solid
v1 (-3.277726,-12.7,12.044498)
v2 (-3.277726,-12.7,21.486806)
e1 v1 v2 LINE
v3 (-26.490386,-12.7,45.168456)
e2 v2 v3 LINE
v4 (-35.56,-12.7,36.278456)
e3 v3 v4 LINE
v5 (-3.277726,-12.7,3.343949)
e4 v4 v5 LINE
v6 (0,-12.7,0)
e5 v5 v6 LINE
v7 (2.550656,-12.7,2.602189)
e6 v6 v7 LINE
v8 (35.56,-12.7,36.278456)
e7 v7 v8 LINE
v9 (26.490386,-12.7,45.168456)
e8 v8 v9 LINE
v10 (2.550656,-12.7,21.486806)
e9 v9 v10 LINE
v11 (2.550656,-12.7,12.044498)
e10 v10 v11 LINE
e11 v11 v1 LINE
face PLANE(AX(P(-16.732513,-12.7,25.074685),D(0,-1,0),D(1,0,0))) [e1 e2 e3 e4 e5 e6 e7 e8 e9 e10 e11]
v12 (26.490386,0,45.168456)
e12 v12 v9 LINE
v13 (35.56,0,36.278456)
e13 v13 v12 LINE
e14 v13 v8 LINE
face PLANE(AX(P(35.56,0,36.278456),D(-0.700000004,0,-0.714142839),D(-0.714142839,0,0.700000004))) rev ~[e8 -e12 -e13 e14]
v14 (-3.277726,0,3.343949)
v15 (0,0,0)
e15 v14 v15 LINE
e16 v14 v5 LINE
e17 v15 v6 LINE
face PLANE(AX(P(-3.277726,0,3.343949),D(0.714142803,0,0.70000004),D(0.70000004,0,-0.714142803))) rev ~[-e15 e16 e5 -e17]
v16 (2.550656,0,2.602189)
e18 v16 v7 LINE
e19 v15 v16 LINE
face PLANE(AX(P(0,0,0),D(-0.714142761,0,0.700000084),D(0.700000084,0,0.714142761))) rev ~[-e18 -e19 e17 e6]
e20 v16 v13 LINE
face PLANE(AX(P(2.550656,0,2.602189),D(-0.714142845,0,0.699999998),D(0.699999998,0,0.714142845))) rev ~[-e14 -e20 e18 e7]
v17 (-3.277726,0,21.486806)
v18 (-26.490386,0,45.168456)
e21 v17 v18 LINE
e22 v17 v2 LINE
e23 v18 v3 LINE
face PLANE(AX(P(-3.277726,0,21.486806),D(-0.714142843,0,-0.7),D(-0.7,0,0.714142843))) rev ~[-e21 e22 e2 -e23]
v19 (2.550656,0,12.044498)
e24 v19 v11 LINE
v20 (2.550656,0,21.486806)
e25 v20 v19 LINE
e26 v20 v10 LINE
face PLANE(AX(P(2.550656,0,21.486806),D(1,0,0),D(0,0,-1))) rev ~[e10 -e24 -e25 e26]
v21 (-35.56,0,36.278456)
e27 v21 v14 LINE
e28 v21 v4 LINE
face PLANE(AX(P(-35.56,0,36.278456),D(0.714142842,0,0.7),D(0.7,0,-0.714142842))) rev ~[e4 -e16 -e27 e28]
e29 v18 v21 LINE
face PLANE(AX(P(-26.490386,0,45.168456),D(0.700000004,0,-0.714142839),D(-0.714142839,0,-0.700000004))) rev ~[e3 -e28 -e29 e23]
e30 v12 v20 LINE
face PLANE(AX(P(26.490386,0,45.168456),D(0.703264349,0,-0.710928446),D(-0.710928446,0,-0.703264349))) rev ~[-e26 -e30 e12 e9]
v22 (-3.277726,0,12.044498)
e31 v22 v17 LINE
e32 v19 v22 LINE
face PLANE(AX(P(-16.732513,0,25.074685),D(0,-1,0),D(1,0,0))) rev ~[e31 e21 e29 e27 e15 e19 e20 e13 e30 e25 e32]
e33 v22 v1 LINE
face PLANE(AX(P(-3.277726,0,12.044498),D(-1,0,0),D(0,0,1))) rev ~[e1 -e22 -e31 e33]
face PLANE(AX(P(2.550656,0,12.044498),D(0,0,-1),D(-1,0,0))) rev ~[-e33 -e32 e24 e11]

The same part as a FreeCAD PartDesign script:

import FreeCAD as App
import Part
import Sketcher

V = App.Vector
Q = App.Units.Quantity


def add_polygon(sketch, points):
    """Adds a closed chain of lines whose ends are joined by coincident constraints."""
    first, n = sketch.GeometryCount, len(points)
    for a, b in zip(points, points[1:] + points[:1]):
        sketch.addGeometry(Part.LineSegment(App.Vector(*a, 0), App.Vector(*b, 0)), False)
    for i in range(n):
        sketch.addConstraint(Sketcher.Constraint("Coincident", first + i, 2, first + (i + 1) % n, 1))

doc = App.newDocument("Part")
body = doc.addObject("PartDesign::Body", "Body")

# Sketch on XZ plane
sketch1 = doc.addObject("Sketcher::SketchObject", "Sketch")
body.addObject(sketch1)
sketch1.AttachmentSupport = (doc.XZ_Plane, [""])
sketch1.MapMode = "FlatFace"
add_polygon(sketch1, [(-26.5, 45.2), (-35.6, 36.3), (-3.3, 3.3), (0, 0), (2.6, 2.6), (35.6, 36.3), (26.5, 45.2), (2.6, 21.5), (2.6, 12), (-3.3, 12), (-3.3, 21.5)])  # lines 0-10
sketch1.addConstraint(Sketcher.Constraint("Vertical", 7))
sketch1.addConstraint(Sketcher.Constraint("Horizontal", 8))
sketch1.addConstraint(Sketcher.Constraint("Vertical", 9))
sketch1.addConstraint(Sketcher.Constraint("Coincident", 2, 2, -1, 1))
sketch1.addConstraint(Sketcher.Constraint("Symmetric", 0, 2, 4, 2, -2))
sketch1.addConstraint(Sketcher.Constraint("Symmetric", 5, 2, 10, 2, -2))
sketch1.addConstraint(Sketcher.Constraint("Perpendicular", 0, 1))
sketch1.addConstraint(Sketcher.Constraint("Parallel", 1, 2))
sketch1.addConstraint(Sketcher.Constraint("Parallel", 3, 4))
sketch1.addConstraint(Sketcher.Constraint("Parallel", 2, 10))
sketch1.addConstraint(Sketcher.Constraint("Horizontal", 6, 2, 9, 2))
sketch1.addConstraint(Sketcher.Constraint("Vertical", 3, 2, 6, 2))
sketch1.addConstraint(Sketcher.Constraint("Vertical", 1, 2, 8, 2))
sketch1.addConstraint(Sketcher.Constraint("Distance", 0, Q("0.5 in")))
sketch1.addConstraint(Sketcher.Constraint("DistanceX", 0, 2, -1, 1, Q("1.4 in")))
sketch1.addConstraint(Sketcher.Constraint("DistanceY", 4, 2, 5, 2, Q("0.35 in")))
sketch1.addConstraint(Sketcher.Constraint("DistanceX", 8, 2, 8, 1, 5.828382))
sketch1.addConstraint(Sketcher.Constraint("DistanceY", -1, 1, 7, 2, 12.044498))
sketch1.addConstraint(Sketcher.Constraint("DistanceY", 7, 2, 7, 1, 9.442308))
pad1 = doc.addObject("PartDesign::Pad", "Pad")
body.addObject(pad1)
pad1.Profile = sketch1
pad1.Length = Q("0.5 in")

doc.recompute()
